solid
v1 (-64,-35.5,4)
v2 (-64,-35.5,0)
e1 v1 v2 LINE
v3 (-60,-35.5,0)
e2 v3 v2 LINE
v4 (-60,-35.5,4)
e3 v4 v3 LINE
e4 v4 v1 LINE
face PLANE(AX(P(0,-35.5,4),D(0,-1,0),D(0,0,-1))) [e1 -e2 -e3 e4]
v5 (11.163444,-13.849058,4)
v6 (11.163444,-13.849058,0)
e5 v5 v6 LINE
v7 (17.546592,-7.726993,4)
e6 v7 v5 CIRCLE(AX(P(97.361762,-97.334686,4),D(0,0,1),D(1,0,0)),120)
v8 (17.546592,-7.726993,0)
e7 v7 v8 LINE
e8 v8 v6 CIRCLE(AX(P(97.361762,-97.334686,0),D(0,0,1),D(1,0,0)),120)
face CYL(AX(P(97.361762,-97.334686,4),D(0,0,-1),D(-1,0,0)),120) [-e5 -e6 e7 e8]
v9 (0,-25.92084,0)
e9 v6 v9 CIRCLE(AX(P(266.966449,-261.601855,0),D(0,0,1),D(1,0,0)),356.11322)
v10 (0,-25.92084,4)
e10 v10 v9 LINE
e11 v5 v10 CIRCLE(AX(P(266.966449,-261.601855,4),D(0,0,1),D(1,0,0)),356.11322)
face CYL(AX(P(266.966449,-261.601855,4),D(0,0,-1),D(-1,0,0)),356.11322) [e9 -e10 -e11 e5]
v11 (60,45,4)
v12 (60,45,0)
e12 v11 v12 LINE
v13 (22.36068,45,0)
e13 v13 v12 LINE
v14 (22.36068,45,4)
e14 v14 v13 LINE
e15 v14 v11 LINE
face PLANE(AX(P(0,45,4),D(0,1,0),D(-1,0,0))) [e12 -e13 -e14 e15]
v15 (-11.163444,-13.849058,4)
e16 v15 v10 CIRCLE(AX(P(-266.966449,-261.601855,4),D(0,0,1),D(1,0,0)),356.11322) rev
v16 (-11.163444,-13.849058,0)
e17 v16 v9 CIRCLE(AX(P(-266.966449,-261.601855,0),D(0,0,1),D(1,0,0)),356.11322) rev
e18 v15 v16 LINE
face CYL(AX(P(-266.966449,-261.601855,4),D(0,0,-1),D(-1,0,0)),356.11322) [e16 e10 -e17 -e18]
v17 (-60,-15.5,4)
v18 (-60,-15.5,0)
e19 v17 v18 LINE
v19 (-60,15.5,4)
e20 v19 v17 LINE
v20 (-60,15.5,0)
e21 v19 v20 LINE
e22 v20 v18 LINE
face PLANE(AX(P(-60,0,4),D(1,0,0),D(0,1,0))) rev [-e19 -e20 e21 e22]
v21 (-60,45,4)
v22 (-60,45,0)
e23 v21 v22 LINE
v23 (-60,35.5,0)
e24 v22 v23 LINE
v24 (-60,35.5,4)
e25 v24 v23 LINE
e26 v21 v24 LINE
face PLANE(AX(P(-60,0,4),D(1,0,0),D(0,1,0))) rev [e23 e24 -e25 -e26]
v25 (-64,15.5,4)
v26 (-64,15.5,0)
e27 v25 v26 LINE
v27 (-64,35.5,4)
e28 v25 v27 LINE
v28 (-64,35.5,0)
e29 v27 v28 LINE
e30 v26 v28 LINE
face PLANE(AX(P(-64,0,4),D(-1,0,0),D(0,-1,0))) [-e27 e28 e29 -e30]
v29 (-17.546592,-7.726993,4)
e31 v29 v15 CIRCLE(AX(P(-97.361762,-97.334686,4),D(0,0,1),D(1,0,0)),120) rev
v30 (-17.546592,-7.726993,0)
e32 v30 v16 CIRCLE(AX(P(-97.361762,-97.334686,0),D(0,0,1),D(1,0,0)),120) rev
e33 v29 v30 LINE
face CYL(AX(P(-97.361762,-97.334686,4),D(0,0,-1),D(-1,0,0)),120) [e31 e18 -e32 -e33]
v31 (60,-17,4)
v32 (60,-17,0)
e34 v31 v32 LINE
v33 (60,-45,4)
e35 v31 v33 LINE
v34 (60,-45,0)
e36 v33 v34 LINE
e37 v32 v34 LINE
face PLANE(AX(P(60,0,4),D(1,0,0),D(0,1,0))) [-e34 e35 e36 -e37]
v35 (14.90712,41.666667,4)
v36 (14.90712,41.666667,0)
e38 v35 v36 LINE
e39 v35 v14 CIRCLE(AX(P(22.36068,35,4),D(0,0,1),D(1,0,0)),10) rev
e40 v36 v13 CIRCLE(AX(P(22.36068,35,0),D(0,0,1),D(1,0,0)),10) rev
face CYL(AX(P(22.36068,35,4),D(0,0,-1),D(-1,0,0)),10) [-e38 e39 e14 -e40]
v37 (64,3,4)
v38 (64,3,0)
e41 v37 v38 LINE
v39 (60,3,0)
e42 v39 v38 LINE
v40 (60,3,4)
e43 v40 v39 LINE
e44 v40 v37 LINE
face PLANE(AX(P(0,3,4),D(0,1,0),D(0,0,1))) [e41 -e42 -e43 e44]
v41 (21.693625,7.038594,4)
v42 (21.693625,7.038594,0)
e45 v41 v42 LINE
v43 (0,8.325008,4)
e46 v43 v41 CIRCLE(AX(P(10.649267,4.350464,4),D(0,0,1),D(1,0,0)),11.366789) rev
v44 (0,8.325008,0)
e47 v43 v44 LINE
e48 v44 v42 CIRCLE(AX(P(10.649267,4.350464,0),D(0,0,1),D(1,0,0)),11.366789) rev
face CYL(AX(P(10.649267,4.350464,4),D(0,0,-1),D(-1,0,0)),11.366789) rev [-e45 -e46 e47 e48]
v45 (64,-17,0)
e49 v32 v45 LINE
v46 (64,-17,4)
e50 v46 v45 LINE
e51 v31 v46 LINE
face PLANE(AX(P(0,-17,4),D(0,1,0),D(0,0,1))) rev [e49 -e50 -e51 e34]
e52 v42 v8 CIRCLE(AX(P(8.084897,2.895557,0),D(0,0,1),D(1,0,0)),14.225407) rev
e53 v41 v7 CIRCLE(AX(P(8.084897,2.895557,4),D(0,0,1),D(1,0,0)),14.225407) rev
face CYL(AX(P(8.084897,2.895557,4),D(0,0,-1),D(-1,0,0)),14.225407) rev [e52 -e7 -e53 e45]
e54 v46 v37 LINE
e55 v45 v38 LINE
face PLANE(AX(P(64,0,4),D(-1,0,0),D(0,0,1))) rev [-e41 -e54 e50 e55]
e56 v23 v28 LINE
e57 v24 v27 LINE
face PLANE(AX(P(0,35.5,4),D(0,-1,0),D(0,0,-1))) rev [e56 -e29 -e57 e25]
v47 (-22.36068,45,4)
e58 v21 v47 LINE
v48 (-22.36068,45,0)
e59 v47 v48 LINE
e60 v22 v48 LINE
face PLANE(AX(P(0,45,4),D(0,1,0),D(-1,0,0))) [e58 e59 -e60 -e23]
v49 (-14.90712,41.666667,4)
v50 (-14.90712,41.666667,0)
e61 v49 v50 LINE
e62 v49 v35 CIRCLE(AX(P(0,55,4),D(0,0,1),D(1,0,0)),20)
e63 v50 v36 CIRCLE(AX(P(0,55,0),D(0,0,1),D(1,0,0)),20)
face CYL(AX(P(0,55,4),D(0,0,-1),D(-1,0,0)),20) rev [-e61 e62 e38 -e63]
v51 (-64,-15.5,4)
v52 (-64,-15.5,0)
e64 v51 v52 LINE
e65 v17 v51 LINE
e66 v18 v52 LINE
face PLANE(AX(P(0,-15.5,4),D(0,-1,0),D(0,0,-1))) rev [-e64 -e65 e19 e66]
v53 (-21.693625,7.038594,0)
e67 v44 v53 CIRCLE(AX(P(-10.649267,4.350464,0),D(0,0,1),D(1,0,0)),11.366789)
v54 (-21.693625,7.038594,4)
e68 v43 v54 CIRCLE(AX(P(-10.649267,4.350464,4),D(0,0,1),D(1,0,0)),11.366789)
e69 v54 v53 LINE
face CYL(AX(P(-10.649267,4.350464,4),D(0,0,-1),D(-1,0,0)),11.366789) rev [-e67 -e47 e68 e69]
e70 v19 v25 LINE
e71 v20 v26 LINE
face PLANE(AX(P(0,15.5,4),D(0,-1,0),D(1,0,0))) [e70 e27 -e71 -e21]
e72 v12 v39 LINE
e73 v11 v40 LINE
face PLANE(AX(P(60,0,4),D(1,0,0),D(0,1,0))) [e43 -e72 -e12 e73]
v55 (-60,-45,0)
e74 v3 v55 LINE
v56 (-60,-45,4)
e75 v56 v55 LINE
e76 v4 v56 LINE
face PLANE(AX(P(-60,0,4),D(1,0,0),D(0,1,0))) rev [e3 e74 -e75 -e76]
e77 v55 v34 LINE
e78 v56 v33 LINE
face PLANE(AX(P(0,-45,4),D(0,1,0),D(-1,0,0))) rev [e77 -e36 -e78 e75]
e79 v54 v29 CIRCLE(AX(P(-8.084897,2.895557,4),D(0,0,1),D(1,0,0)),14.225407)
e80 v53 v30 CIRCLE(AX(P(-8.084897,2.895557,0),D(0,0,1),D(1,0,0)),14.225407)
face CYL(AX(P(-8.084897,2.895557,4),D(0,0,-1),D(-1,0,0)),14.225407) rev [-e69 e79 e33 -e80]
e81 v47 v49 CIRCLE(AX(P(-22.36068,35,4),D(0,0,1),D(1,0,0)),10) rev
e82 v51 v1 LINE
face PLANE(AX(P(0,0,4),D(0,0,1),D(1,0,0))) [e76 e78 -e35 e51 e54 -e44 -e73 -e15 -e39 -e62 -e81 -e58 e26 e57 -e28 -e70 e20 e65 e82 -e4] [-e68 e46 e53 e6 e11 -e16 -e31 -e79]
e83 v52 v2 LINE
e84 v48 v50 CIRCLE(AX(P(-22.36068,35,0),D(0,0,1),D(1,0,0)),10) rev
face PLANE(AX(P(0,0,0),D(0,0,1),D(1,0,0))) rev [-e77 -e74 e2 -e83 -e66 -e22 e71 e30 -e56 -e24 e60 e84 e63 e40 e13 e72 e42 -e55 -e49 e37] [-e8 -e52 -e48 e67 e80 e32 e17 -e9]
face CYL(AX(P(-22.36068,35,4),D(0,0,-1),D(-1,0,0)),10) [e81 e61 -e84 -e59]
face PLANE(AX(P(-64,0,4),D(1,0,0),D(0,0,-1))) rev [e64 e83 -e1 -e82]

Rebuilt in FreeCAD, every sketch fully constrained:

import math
import FreeCAD as App
import Part
import Sketcher

V = App.Vector

doc = App.newDocument("Part")
body = doc.addObject("PartDesign::Body", "Body")

# Sketch on XY plane
sketch1 = body.newObject("Sketcher::SketchObject", "Sketch")
sketch1.AttachmentSupport = (doc.getObject("XY_Plane"), [""])
sketch1.MapMode = "FlatFace"
sketch1.addGeometry([
    Part.LineSegment(V(-22.36068, 45, 0), V(-60, 45, 0)),  # 0
    Part.LineSegment(V(-60, 45, 0), V(-60, 35.5, 0)),  # 1
    Part.LineSegment(V(-60, 35.5, 0), V(-64, 35.5, 0)),  # 2
    Part.LineSegment(V(-64, 35.5, 0), V(-64, 15.5, 0)),  # 3
    Part.LineSegment(V(-64, 15.5, 0), V(-60, 15.5, 0)),  # 4
    Part.LineSegment(V(-60, 15.5, 0), V(-60, -15.5, 0)),  # 5
    Part.LineSegment(V(-60, -15.5, 0), V(-64, -15.5, 0)),  # 6
    Part.LineSegment(V(-64, -15.5, 0), V(-64, -35.5, 0)),  # 7
    Part.LineSegment(V(-64, -35.5, 0), V(-60, -35.5, 0)),  # 8
    Part.LineSegment(V(-60, -35.5, 0), V(-60, -45, 0)),  # 9
    Part.LineSegment(V(-60, -45, 0), V(60, -45, 0)),  # 10
    Part.LineSegment(V(60, -45, 0), V(60, -17, 0)),  # 11
    Part.LineSegment(V(60, -17, 0), V(64, -17, 0)),  # 12
    Part.LineSegment(V(64, -17, 0), V(64, 3, 0)),  # 13
    Part.LineSegment(V(64, 3, 0), V(60, 3, 0)),  # 14
    Part.LineSegment(V(60, 3, 0), V(60, 45, 0)),  # 15
    Part.LineSegment(V(60, 45, 0), V(22.36068, 45, 0)),  # 16
    Part.ArcOfCircle(Part.Circle(V(22.36068, 35, 0), V(0, 0, 1), 10), math.radians(90), math.radians(138.189685)),  # 17
    Part.ArcOfCircle(Part.Circle(V(0, 55, 0), V(0, 0, 1), 20), math.radians(-138.189685), math.radians(-41.810315)),  # 18
    Part.ArcOfCircle(Part.Circle(V(-22.36068, 35, 0), V(0, 0, 1), 10), math.radians(41.810315), math.radians(90)),  # 19
    Part.ArcOfCircle(Part.Circle(V(10.649267, 4.350464, 0), V(0, 0, 1), 11.366789), math.radians(13.679461), math.radians(159.533301)),  # 20
    Part.ArcOfCircle(Part.Circle(V(8.084897, 2.895557, 0), V(0, 0, 1), 14.225407), math.radians(-48.307975), math.radians(16.932332)),  # 21
    Part.ArcOfCircle(Part.Circle(V(97.361762, -97.334686, 0), V(0, 0, 1), 120), math.radians(131.692025), math.radians(135.915894)),  # 22
    Part.ArcOfCircle(Part.Circle(V(266.96645, -261.601856, 0), V(0, 0, 1), 356.113221), math.radians(135.915894), math.radians(138.56157)),  # 23
    Part.ArcOfCircle(Part.Circle(V(-266.96645, -261.601856, 0), V(0, 0, 1), 356.113221), math.radians(41.43843), math.radians(44.084106)),  # 24
    Part.ArcOfCircle(Part.Circle(V(-97.361762, -97.334686, 0), V(0, 0, 1), 120), math.radians(44.084106), math.radians(48.307975)),  # 25
    Part.ArcOfCircle(Part.Circle(V(-8.084897, 2.895557, 0), V(0, 0, 1), 14.225407), math.radians(163.067668), math.radians(228.307975)),  # 26
    Part.ArcOfCircle(Part.Circle(V(-10.649267, 4.350464, 0), V(0, 0, 1), 11.366789), math.radians(20.466699), math.radians(166.320539)),  # 27
], False)
sketch1.addConstraint([
    Sketcher.Constraint("Coincident", 0, 2, 1, 1),
    Sketcher.Constraint("Coincident", 1, 2, 2, 1),
    Sketcher.Constraint("Coincident", 2, 2, 3, 1),
    Sketcher.Constraint("Coincident", 3, 2, 4, 1),
    Sketcher.Constraint("Coincident", 4, 2, 5, 1),
    Sketcher.Constraint("Coincident", 5, 2, 6, 1),
    Sketcher.Constraint("Coincident", 6, 2, 7, 1),
    Sketcher.Constraint("Coincident", 7, 2, 8, 1),
    Sketcher.Constraint("Coincident", 8, 2, 9, 1),
    Sketcher.Constraint("Coincident", 9, 2, 10, 1),
    Sketcher.Constraint("Coincident", 10, 2, 11, 1),
    Sketcher.Constraint("Coincident", 11, 2, 12, 1),
    Sketcher.Constraint("Coincident", 12, 2, 13, 1),
    Sketcher.Constraint("Coincident", 13, 2, 14, 1),
    Sketcher.Constraint("Coincident", 14, 2, 15, 1),
    Sketcher.Constraint("Coincident", 15, 2, 16, 1),
    Sketcher.Constraint("Coincident", 16, 2, 17, 1),
    Sketcher.Constraint("Coincident", 17, 2, 18, 2),
    Sketcher.Constraint("Coincident", 18, 1, 19, 1),
    Sketcher.Constraint("Coincident", 19, 2, 0, 1),
    Sketcher.Constraint("Coincident", 20, 1, 21, 2),
    Sketcher.Constraint("Coincident", 21, 1, 22, 1),
    Sketcher.Constraint("Coincident", 22, 2, 23, 1),
    Sketcher.Constraint("Coincident", 23, 2, 24, 1),
    Sketcher.Constraint("Coincident", 24, 2, 25, 1),
    Sketcher.Constraint("Coincident", 25, 2, 26, 2),
    Sketcher.Constraint("Coincident", 26, 1, 27, 2),
    Sketcher.Constraint("Coincident", 27, 1, 20, 2),
    Sketcher.Constraint("Horizontal", 0),
    Sketcher.Constraint("Vertical", 1),
    Sketcher.Constraint("Horizontal", 2),
    Sketcher.Constraint("Vertical", 3),
    Sketcher.Constraint("Horizontal", 4),
    Sketcher.Constraint("Vertical", 5),
    Sketcher.Constraint("Horizontal", 6),
    Sketcher.Constraint("Vertical", 7),
    Sketcher.Constraint("Horizontal", 8),
    Sketcher.Constraint("Vertical", 9),
    Sketcher.Constraint("Horizontal", 10),
    Sketcher.Constraint("Vertical", 11),
    Sketcher.Constraint("Horizontal", 12),
    Sketcher.Constraint("Vertical", 13),
    Sketcher.Constraint("Horizontal", 14),
    Sketcher.Constraint("Vertical", 15),
    Sketcher.Constraint("Horizontal", 16),
    Sketcher.Constraint("PointOnObject", 18, 3, -2),
    Sketcher.Constraint("PointOnObject", 23, 2, -2),
    Sketcher.Constraint("PointOnObject", 27, 1, -2),
    Sketcher.Constraint("Radius", 17, 10.0),
    Sketcher.Constraint("Radius", 18, 20.0),
    Sketcher.Constraint("Radius", 19, 10.0),
    Sketcher.Constraint("Radius", 22, 120.0),
    Sketcher.Constraint("Radius", 25, 120.0),
    Sketcher.Constraint("DistanceX", 2, 2, 2, 1, 4.0),
    Sketcher.Constraint("DistanceX", 4, 1, 4, 2, 4.0),
    Sketcher.Constraint("DistanceX", 6, 2, 6, 1, 4.0),
    Sketcher.Constraint("DistanceX", 8, 1, 8, 2, 4.0),
    Sketcher.Constraint("DistanceX", 10, 1, 10, 2, 120.0),
    Sketcher.Constraint("DistanceX", 12, 1, 12, 2, 4.0),
    Sketcher.Constraint("DistanceX", 14, 2, 14, 1, 4.0),
    Sketcher.Constraint("DistanceY", 3, 2, 3, 1, 20.0),
    Sketcher.Constraint("DistanceY", 5, 2, 5, 1, 31.0),
    Sketcher.Constraint("DistanceY", 7, 2, 7, 1, 20.0),
    Sketcher.Constraint("DistanceY", 11, 1, 11, 2, 28.0),
    Sketcher.Constraint("DistanceY", 13, 1, 13, 2, 20.0),
    Sketcher.Constraint("DistanceY", 15, 1, 15, 2, 42.0),
    Sketcher.Constraint("DistanceY", 1, 2, 1, 1, 9.5),
    Sketcher.Constraint("DistanceY", 9, 2, 9, 1, 9.5),
    Sketcher.Constraint("DistanceY", -1, 1, 17, 3, 35.0),
    Sketcher.Constraint("DistanceY", -1, 1, 18, 3, 55.0),
    Sketcher.Constraint("DistanceX", 0, 2, -1, 1, 60.0),
    Sketcher.Constraint("Radius", 20, 11.366789),
    Sketcher.Constraint("Radius", 23, 356.113221),
    Sketcher.Constraint("Radius", 24, 356.113221),
    Sketcher.Constraint("Radius", 27, 11.366789),
    Sketcher.Constraint("Radius", 21, 14.225407),
    Sketcher.Constraint("Radius", 26, 14.225407),
    Sketcher.Constraint("DistanceX", 0, 2, 0, 1, 37.63932),
    Sketcher.Constraint("DistanceX", 16, 2, 16, 1, 37.63932),
    Sketcher.Constraint("DistanceX", 19, 3, 17, 2, 37.2678),
    Sketcher.Constraint("DistanceX", 18, 1, 16, 2, 37.2678),
    Sketcher.Constraint("DistanceX", -1, 1, 23, 3, 266.96645),
    Sketcher.Constraint("DistanceX", 24, 3, -1, 1, 266.96645),
    Sketcher.Constraint("DistanceX", -1, 1, 21, 1, 17.546592),
    Sketcher.Constraint("DistanceY", 22, 2, -1, 1, 13.849058),
    Sketcher.Constraint("DistanceY", 24, 2, -1, 1, 13.849058),
    Sketcher.Constraint("DistanceX", 25, 2, -1, 1, 17.546592),
    Sketcher.Constraint("DistanceY", -1, 1, 27, 1, 8.325008),
    Sketcher.Constraint("DistanceX", 21, 3, 20, 3, 2.564369),
    Sketcher.Constraint("DistanceY", 22, 3, 20, 3, 101.68515),
    Sketcher.Constraint("DistanceY", 23, 3, 22, 3, 164.26717),
    Sketcher.Constraint("DistanceX", 25, 3, 21, 3, 105.44666),
    Sketcher.Constraint("DistanceY", 25, 3, 20, 3, 101.68515),
    Sketcher.Constraint("DistanceX", 27, 3, 26, 3, 2.564369),
    Sketcher.Constraint("DistanceX", 27, 3, 20, 1, 32.342892),
])
pad1 = body.newObject("PartDesign::Pad", "Pad")
pad1.Profile = sketch1
pad1.Length = 4

doc.recompute()
